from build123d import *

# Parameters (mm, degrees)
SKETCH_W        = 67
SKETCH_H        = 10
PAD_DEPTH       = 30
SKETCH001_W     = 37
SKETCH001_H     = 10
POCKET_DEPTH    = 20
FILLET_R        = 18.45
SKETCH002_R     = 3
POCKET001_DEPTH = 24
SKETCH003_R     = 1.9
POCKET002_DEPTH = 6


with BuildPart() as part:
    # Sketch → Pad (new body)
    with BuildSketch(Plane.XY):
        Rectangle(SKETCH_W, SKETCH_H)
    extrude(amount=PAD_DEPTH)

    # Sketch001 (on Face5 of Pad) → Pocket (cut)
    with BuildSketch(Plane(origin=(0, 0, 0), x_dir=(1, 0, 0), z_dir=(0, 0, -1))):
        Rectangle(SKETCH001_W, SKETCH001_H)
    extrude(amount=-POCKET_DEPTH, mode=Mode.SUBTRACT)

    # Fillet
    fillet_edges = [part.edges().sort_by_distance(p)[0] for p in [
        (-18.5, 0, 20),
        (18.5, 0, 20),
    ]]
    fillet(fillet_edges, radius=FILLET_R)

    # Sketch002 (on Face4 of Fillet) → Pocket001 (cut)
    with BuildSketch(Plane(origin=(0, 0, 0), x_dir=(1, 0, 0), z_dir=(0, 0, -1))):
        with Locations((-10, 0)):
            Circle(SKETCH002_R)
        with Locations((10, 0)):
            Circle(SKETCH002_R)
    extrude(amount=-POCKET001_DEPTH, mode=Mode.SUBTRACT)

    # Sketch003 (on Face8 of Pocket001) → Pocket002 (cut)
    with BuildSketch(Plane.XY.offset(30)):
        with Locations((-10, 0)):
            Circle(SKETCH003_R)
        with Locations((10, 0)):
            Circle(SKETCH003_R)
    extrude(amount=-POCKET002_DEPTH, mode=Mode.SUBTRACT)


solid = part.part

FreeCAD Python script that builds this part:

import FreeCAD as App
import Part
import Sketcher
from FreeCAD import Vector


def edges_at(feature, points):
    """Names of the edges that pass closest to the given points."""
    edges = feature.Shape.Edges
    near = lambda p: min(range(len(edges)), key=lambda i: edges[i].distToShape(Part.Vertex(*p))[0])
    return sorted({f"Edge{near(p) + 1}" for p in points})

doc = App.newDocument("Part")
params = doc.addObject("Spreadsheet::Sheet", "Params")
for row, (alias, value) in enumerate([
    ("sketch1_width", "67 mm"),
    ("sketch1_height", "10 mm"),
    ("pad1_length", "30 mm"),
    ("sketch2_width", "37 mm"),
    ("sketch2_height", "10 mm"),
    ("pocket1_length", "20 mm"),
    ("fillet_radius", "18.45 mm"),
    ("sketch3_diameter", "6 mm"),
    ("pocket2_length", "24 mm"),
    ("sketch4_diameter", "3.8 mm"),
    ("pocket3_length", "6 mm"),
], start=1):
    params.set(f"A{row}", alias)
    params.set(f"B{row}", "=" + value)
    params.setAlias(f"B{row}", alias)

body = doc.addObject("PartDesign::Body", "Body")

# Sketch on XY plane
sketch1 = body.newObject("Sketcher::SketchObject", "Sketch")
sketch1.AttachmentSupport = (doc.getObject("XY_Plane"), [""])
sketch1.MapMode = "FlatFace"
sketch1.addGeometry([
    Part.LineSegment(Vector(-34, 5, 0), Vector(-34, -5, 0)),
    Part.LineSegment(Vector(-34, -5, 0), Vector(34, -5, 0)),
    Part.LineSegment(Vector(34, -5, 0), Vector(34, 5, 0)),
    Part.LineSegment(Vector(34, 5, 0), Vector(-34, 5, 0)),
], False)
sketch1.addConstraint([
    Sketcher.Constraint("Coincident", 0, 2, 1, 1),
    Sketcher.Constraint("Coincident", 1, 2, 2, 1),
    Sketcher.Constraint("Coincident", 2, 2, 3, 1),
    Sketcher.Constraint("Coincident", 3, 2, 0, 1),
    Sketcher.Constraint("Vertical", 0),
    Sketcher.Constraint("Horizontal", 1),
    Sketcher.Constraint("Vertical", 2),
    Sketcher.Constraint("Horizontal", 3),
    Sketcher.Constraint("Symmetric", 0, 2, 2, 2, -1, 1),
    Sketcher.Constraint("DistanceX", 1, 1, 1, 2, 67.0),
    Sketcher.Constraint("DistanceY", 0, 2, 0, 1, 10.0),
])
sketch1.setExpression("Constraints[9]", "Params.sketch1_width")
sketch1.setExpression("Constraints[10]", "Params.sketch1_height")
pad1 = body.newObject("PartDesign::Pad", "Pad")
pad1.Profile = sketch1
pad1.setExpression("Length", "Params.pad1_length")

# Sketch on XY plane
sketch2 = body.newObject("Sketcher::SketchObject", "Sketch001")
sketch2.AttachmentSupport = (doc.getObject("XY_Plane"), [""])
sketch2.MapMode = "FlatFace"
sketch2.addGeometry([
    Part.LineSegment(Vector(-18, -5, 0), Vector(-18, 5, 0)),
    Part.LineSegment(Vector(-18, 5, 0), Vector(18, 5, 0)),
    Part.LineSegment(Vector(18, 5, 0), Vector(18, -5, 0)),
    Part.LineSegment(Vector(18, -5, 0), Vector(-18, -5, 0)),
], False)
sketch2.addConstraint([
    Sketcher.Constraint("Coincident", 0, 2, 1, 1),
    Sketcher.Constraint("Coincident", 1, 2, 2, 1),
    Sketcher.Constraint("Coincident", 2, 2, 3, 1),
    Sketcher.Constraint("Coincident", 3, 2, 0, 1),
    Sketcher.Constraint("Vertical", 0),
    Sketcher.Constraint("Horizontal", 1),
    Sketcher.Constraint("Vertical", 2),
    Sketcher.Constraint("Horizontal", 3),
    Sketcher.Constraint("Symmetric", 0, 2, 2, 2, -1, 1),
    Sketcher.Constraint("DistanceX", 1, 1, 1, 2, 37.0),
    Sketcher.Constraint("DistanceY", 0, 1, 0, 2, 10.0),
])
sketch2.setExpression("Constraints[9]", "Params.sketch2_width")
sketch2.setExpression("Constraints[10]", "Params.sketch2_height")
pocket1 = body.newObject("PartDesign::Pocket", "Pocket")
pocket1.Profile = sketch2
pocket1.setExpression("Length", "Params.pocket1_length")
pocket1.Reversed = True
doc.recompute()

fillet = body.newObject("PartDesign::Fillet", "Fillet")
fillet.Base = (pocket1, edges_at(pocket1, [(-18.5, 0, 20), (18.5, 0, 20)]))
fillet.setExpression("Radius", "Params.fillet_radius")

# Sketch on XY plane
sketch3 = body.newObject("Sketcher::SketchObject", "Sketch002")
sketch3.AttachmentSupport = (doc.getObject("XY_Plane"), [""])
sketch3.MapMode = "FlatFace"
sketch3.addGeometry([
    Part.Circle(Vector(-10, 0, 0), Vector(0, 0, 1), 3),
    Part.Circle(Vector(10, 0, 0), Vector(0, 0, 1), 3),
], False)
sketch3.addConstraint([
    Sketcher.Constraint("Equal", 0, 1),
    Sketcher.Constraint("Symmetric", 0, 3, 1, 3, -1, 1),
    Sketcher.Constraint("PointOnObject", 0, 3, -1),
    Sketcher.Constraint("Diameter", 0, 6.0),
    Sketcher.Constraint("DistanceX", 0, 3, -1, 1, 10.0),
])
sketch3.setExpression("Constraints[3]", "Params.sketch3_diameter")
pocket2 = body.newObject("PartDesign::Pocket", "Pocket001")
pocket2.Profile = sketch3
pocket2.setExpression("Length", "Params.pocket2_length")
pocket2.Reversed = True

# Sketch on XY plane
sketch4 = body.newObject("Sketcher::SketchObject", "Sketch003")
sketch4.AttachmentSupport = (doc.getObject("XY_Plane"), [""])
sketch4.MapMode = "FlatFace"
sketch4.AttachmentOffset = App.Placement(Vector(0, 0, 30), App.Rotation())
sketch4.addGeometry([
    Part.Circle(Vector(-10, 0, 0), Vector(0, 0, 1), 1.9),
    Part.Circle(Vector(10, 0, 0), Vector(0, 0, 1), 1.9),
], False)
sketch4.addConstraint([
    Sketcher.Constraint("Equal", 0, 1),
    Sketcher.Constraint("Symmetric", 0, 3, 1, 3, -1, 1),
    Sketcher.Constraint("PointOnObject", 0, 3, -1),
    Sketcher.Constraint("Diameter", 0, 3.8),
    Sketcher.Constraint("DistanceX", 0, 3, -1, 1, 10.0),
])
sketch4.setExpression("Constraints[3]", "Params.sketch4_diameter")
pocket3 = body.newObject("PartDesign::Pocket", "Pocket002")
pocket3.Profile = sketch4
pocket3.setExpression("Length", "Params.pocket3_length")

doc.recompute()
